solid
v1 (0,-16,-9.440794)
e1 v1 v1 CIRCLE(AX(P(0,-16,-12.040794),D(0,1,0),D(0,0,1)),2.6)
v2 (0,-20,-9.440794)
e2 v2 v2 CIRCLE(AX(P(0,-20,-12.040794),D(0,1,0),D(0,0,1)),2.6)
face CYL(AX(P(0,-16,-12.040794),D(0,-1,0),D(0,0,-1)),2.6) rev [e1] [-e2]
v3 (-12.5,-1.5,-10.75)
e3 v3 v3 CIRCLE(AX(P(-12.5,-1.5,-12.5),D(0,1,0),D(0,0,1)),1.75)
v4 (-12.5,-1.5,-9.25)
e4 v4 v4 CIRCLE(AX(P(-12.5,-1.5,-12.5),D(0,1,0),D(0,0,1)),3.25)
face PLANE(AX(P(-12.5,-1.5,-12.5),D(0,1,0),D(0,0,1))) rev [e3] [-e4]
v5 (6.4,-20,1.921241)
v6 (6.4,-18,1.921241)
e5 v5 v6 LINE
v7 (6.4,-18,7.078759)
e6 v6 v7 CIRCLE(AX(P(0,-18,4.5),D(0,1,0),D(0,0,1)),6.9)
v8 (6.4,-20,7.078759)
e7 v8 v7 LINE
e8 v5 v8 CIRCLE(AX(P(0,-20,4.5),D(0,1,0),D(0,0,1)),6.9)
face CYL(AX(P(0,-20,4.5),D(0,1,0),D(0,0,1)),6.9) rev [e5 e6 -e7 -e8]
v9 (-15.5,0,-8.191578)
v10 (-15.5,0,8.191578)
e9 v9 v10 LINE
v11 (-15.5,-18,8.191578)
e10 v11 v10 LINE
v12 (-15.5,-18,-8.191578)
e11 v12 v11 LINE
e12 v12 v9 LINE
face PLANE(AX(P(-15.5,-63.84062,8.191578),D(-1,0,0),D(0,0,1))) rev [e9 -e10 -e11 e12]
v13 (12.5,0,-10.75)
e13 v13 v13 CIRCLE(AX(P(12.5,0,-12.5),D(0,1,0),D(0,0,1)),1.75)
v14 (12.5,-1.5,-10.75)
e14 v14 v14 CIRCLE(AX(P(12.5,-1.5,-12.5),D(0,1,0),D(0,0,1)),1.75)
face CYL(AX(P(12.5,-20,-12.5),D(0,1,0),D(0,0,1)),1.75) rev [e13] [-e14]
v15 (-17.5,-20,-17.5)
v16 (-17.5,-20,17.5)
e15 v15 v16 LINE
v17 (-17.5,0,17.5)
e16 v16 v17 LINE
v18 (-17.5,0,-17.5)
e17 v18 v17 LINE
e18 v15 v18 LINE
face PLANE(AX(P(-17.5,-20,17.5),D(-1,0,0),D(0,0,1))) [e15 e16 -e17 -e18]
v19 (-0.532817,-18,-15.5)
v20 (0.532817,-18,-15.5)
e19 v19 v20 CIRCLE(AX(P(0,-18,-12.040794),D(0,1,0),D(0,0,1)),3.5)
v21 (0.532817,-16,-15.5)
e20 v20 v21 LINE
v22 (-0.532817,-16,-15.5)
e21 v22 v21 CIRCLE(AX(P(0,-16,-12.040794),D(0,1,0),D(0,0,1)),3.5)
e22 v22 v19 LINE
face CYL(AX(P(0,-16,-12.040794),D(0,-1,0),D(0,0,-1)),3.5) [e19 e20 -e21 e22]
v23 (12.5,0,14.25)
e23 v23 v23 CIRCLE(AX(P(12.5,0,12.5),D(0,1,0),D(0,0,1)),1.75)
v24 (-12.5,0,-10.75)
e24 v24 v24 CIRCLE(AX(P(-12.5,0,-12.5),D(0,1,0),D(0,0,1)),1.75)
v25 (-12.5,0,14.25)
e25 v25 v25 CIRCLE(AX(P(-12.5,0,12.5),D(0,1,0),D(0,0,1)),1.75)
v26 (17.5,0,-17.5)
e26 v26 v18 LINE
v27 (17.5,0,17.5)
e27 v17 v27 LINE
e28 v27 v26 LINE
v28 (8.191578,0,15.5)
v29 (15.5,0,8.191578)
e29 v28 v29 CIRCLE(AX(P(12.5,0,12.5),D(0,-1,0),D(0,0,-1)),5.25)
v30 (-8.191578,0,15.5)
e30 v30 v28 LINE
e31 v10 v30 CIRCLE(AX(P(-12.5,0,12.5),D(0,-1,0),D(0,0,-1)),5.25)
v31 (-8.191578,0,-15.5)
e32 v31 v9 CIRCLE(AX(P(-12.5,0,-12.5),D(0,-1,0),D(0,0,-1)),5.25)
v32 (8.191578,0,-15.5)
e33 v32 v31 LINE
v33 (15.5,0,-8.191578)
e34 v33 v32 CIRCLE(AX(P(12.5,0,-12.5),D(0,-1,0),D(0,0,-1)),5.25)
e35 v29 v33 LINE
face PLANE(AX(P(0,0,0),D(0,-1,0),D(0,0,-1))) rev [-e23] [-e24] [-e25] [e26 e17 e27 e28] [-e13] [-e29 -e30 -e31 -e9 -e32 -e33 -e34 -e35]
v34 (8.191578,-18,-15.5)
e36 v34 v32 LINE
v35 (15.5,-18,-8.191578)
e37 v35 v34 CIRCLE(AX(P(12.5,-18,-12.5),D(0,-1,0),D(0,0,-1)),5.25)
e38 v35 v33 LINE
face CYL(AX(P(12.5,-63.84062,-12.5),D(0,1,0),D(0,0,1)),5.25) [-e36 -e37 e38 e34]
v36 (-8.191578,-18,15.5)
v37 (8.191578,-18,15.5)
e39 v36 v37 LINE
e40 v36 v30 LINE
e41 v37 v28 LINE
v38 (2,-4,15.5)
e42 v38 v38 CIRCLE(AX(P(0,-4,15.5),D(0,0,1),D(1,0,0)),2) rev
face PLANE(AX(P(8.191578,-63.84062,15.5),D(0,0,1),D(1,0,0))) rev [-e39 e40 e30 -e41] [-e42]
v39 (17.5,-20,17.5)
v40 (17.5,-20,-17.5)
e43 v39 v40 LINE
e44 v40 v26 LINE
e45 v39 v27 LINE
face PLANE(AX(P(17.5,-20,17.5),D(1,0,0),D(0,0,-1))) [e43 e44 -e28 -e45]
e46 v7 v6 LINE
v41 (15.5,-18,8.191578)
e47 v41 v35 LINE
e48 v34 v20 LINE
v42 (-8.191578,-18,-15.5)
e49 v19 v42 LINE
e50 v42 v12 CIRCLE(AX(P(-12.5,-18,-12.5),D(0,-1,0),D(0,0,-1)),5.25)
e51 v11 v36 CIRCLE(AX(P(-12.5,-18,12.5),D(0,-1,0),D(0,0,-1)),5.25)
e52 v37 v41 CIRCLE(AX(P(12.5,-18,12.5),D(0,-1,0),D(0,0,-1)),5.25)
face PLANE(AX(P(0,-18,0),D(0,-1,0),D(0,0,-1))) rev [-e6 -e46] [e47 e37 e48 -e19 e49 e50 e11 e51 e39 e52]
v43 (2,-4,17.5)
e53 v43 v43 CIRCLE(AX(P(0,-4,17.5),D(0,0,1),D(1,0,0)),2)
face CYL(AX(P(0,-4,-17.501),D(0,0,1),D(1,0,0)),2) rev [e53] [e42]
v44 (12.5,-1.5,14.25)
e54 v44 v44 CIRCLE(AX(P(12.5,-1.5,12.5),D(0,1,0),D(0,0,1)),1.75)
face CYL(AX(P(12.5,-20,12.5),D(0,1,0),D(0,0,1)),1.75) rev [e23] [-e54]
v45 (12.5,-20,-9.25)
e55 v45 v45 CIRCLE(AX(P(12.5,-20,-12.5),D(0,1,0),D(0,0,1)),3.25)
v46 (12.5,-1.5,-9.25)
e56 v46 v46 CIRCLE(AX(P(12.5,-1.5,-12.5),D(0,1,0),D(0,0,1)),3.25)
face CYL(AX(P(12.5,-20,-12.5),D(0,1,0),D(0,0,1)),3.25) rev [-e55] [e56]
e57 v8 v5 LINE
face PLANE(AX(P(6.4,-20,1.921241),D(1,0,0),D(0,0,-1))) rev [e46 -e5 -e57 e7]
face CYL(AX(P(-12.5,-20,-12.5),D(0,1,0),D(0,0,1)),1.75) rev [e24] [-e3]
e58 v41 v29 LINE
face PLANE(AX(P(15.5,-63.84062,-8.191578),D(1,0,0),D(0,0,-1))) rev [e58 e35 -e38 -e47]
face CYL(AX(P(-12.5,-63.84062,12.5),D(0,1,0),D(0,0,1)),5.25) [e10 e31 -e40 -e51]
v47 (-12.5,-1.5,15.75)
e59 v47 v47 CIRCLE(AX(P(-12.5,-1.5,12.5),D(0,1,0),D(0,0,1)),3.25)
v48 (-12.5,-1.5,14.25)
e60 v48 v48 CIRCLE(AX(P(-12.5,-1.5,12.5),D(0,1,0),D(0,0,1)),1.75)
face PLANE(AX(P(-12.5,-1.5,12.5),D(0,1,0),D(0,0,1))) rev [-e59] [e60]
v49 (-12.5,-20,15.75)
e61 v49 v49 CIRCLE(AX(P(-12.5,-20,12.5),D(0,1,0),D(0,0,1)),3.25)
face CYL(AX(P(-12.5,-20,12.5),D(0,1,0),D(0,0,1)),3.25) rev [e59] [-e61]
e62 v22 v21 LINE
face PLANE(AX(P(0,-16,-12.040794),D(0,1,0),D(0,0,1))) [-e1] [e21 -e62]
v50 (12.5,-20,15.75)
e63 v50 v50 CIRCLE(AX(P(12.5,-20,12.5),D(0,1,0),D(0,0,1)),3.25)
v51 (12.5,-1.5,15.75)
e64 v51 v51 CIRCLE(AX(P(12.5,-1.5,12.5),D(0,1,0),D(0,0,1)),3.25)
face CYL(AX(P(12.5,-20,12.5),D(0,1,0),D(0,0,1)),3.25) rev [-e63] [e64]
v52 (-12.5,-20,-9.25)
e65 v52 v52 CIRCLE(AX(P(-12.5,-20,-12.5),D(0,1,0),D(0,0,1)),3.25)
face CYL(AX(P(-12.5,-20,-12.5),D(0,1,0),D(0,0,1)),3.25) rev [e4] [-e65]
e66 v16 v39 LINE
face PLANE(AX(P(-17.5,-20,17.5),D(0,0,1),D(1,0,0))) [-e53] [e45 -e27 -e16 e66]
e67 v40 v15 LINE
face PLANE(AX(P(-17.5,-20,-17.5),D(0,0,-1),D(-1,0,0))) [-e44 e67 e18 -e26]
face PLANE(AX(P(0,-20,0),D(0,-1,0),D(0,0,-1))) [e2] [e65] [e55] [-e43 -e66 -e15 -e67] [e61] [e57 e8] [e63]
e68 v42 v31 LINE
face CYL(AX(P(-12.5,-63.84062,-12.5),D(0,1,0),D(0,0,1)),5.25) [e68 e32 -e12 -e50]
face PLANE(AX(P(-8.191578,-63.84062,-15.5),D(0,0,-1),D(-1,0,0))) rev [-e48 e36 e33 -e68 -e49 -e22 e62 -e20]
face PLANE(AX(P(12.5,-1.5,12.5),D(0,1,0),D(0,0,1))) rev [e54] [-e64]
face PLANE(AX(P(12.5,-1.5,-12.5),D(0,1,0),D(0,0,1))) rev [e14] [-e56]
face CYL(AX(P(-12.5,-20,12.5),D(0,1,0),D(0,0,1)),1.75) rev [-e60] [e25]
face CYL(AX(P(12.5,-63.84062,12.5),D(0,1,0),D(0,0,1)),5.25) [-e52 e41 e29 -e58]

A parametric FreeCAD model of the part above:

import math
import FreeCAD as App
import Part
import Sketcher

V = App.Vector
Q = App.Units.Quantity

doc = App.newDocument("Part")
body = doc.addObject("PartDesign::Body", "Body")

# Sketch on XZ plane
sketch1 = body.newObject("Sketcher::SketchObject", "Sketch")
sketch1.AttachmentSupport = (doc.getObject("XZ_Plane"), [""])
sketch1.MapMode = "FlatFace"
sketch1.addGeometry(Part.LineSegment(V(-18, -18, 0), V(-18, 18, 0)), False)
sketch1.addGeometry(Part.LineSegment(V(-18, 18, 0), V(18, 18, 0)), False)
sketch1.addGeometry(Part.LineSegment(V(18, 18, 0), V(18, -18, 0)), False)
sketch1.addGeometry(Part.LineSegment(V(18, -18, 0), V(-18, -18, 0)), False)
sketch1.addConstraint(Sketcher.Constraint("Coincident", 0, 2, 1, 1))
sketch1.addConstraint(Sketcher.Constraint("Coincident", 1, 2, 2, 1))
sketch1.addConstraint(Sketcher.Constraint("Coincident", 2, 2, 3, 1))
sketch1.addConstraint(Sketcher.Constraint("Coincident", 3, 2, 0, 1))
sketch1.addConstraint(Sketcher.Constraint("Vertical", 0))
sketch1.addConstraint(Sketcher.Constraint("Horizontal", 1))
sketch1.addConstraint(Sketcher.Constraint("Vertical", 2))
sketch1.addConstraint(Sketcher.Constraint("Horizontal", 3))
sketch1.addConstraint(Sketcher.Constraint("Symmetric", 0, 2, 2, 2, -1, 1))
sketch1.addConstraint(Sketcher.Constraint("Equal", 3, 0))
sketch1.addConstraint(Sketcher.Constraint("DistanceX", 1, 1, 1, 2, Q("35 mm")))
pad1 = body.newObject("PartDesign::Pad", "Pad")
pad1.Profile = sketch1
pad1.Length = 20

# Sketch on XZ plane
sketch2 = body.newObject("Sketcher::SketchObject", "Sketch001")
sketch2.AttachmentSupport = (doc.getObject("XZ_Plane"), [""])
sketch2.MapMode = "FlatFace"
sketch2.AttachmentOffset = App.Placement(V(0, 0, 1.5), App.Rotation())
sketch2.addGeometry(Part.Circle(V(-12.5, -12.5, 0), V(0, 0, 1), 3.2), False)
sketch2.addGeometry(Part.Circle(V(12.5, -12.5, 0), V(0, 0, 1), 3.2), False)
sketch2.addGeometry(Part.Circle(V(-12.5, 12.5, 0), V(0, 0, 1), 3.2), False)
sketch2.addGeometry(Part.Circle(V(12.5, 12.5, 0), V(0, 0, 1), 3.2), False)
sketch2.addConstraint(Sketcher.Constraint("Equal", 0, 1))
sketch2.addConstraint(Sketcher.Constraint("Equal", 1, 2))
sketch2.addConstraint(Sketcher.Constraint("Equal", 2, 3))
sketch2.addConstraint(Sketcher.Constraint("Symmetric", 1, 3, 2, 3, -1, 1))
sketch2.addConstraint(Sketcher.Constraint("Symmetric", 0, 3, 3, 3, -1, 1))
sketch2.addConstraint(Sketcher.Constraint("Symmetric", 0, 3, 1, 3, -2))
sketch2.addConstraint(Sketcher.Constraint("Diameter", 0, Q("6.5 mm")))
sketch2.addConstraint(Sketcher.Constraint("DistanceX", 0, 3, 1, 3, Q("25 mm")))
sketch2.addConstraint(Sketcher.Constraint("DistanceY", 0, 3, 2, 3, Q("25 mm")))
pocket1 = body.newObject("PartDesign::Pocket", "Pocket")
pocket1.Profile = sketch2
pocket1.Type = "ThroughAll"
pocket1.Reversed = True

# Sketch on XZ plane
sketch3 = body.newObject("Sketcher::SketchObject", "Sketch002")
sketch3.AttachmentSupport = (doc.getObject("XZ_Plane"), [""])
sketch3.MapMode = "FlatFace"
sketch3.addGeometry(Part.LineSegment(V(8, -16, 0), V(-8, -16, 0)), False)
sketch3.addGeometry(Part.ArcOfCircle(Part.Circle(V(-12, -12, 0), V(0, 0, 1), 5), math.radians(-35), math.radians(125)), False)
sketch3.addGeometry(Part.LineSegment(V(-16, -8, 0), V(-16, 8, 0)), False)
sketch3.addGeometry(Part.ArcOfCircle(Part.Circle(V(-12, 12, 0), V(0, 0, 1), 5), math.radians(-125), math.radians(35)), False)
sketch3.addGeometry(Part.LineSegment(V(-8, 16, 0), V(8, 16, 0)), False)
sketch3.addGeometry(Part.ArcOfCircle(Part.Circle(V(12, 12, 0), V(0, 0, 1), 5), math.radians(145), math.radians(305)), False)
sketch3.addGeometry(Part.LineSegment(V(16, 8, 0), V(16, -8, 0)), False)
sketch3.addGeometry(Part.ArcOfCircle(Part.Circle(V(12, -12, 0), V(0, 0, 1), 5), math.radians(55), math.radians(215)), False)
sketch3.addConstraint(Sketcher.Constraint("Coincident", 0, 2, 1, 1))
sketch3.addConstraint(Sketcher.Constraint("Coincident", 1, 2, 2, 1))
sketch3.addConstraint(Sketcher.Constraint("Coincident", 2, 2, 3, 1))
sketch3.addConstraint(Sketcher.Constraint("Coincident", 3, 2, 4, 1))
sketch3.addConstraint(Sketcher.Constraint("Coincident", 4, 2, 5, 1))
sketch3.addConstraint(Sketcher.Constraint("Coincident", 5, 2, 6, 1))
sketch3.addConstraint(Sketcher.Constraint("Coincident", 6, 2, 7, 1))
sketch3.addConstraint(Sketcher.Constraint("Coincident", 7, 2, 0, 1))
sketch3.addConstraint(Sketcher.Constraint("Horizontal", 0))
sketch3.addConstraint(Sketcher.Constraint("Vertical", 2))
sketch3.addConstraint(Sketcher.Constraint("Horizontal", 4))
sketch3.addConstraint(Sketcher.Constraint("Vertical", 6))
sketch3.addConstraint(Sketcher.Constraint("Equal", 1, 3))
sketch3.addConstraint(Sketcher.Constraint("Equal", 3, 5))
sketch3.addConstraint(Sketcher.Constraint("Equal", 5, 7))
sketch3.addConstraint(Sketcher.Constraint("Symmetric", 1, 3, 5, 3, -1, 1))
sketch3.addConstraint(Sketcher.Constraint("Symmetric", 3, 3, 7, 3, -1, 1))
sketch3.addConstraint(Sketcher.Constraint("Symmetric", 3, 3, 5, 3, -2))
sketch3.addConstraint(Sketcher.Constraint("Horizontal", 2, 2, 5, 2))
sketch3.addConstraint(Sketcher.Constraint("Vertical", 0, 2, 3, 2))
sketch3.addConstraint(Sketcher.Constraint("Equal", 4, 2))
sketch3.addConstraint(Sketcher.Constraint("Radius", 1, Q("5.25 mm")))
sketch3.addConstraint(Sketcher.Constraint("DistanceY", 1, 3, 3, 3, Q("25 mm")))
sketch3.addConstraint(Sketcher.Constraint("DistanceX", 3, 3, 5, 3, Q("25 mm")))
sketch3.addConstraint(Sketcher.Constraint("DistanceY", 0, 2, 1, 3, Q("3 mm")))
pocket2 = body.newObject("PartDesign::Pocket", "Pocket001")
pocket2.Profile = sketch3
pocket2.Length = 18
pocket2.Reversed = True

# Sketch on XZ plane
sketch4 = body.newObject("Sketcher::SketchObject", "Sketch003")
sketch4.AttachmentSupport = (doc.getObject("XZ_Plane"), [""])
sketch4.MapMode = "FlatFace"
sketch4.AttachmentOffset = App.Placement(V(0, 0, 18), App.Rotation())
sketch4.addGeometry(Part.Circle(V(0, -12, 0), V(0, 0, 1), 3.5), False)
sketch4.addGeometry(Part.Circle(V(0, -12, 0), V(0, 0, 1), 2.6), False)
sketch4.addConstraint(Sketcher.Constraint("Coincident", 1, 3, 0, 3))
sketch4.addConstraint(Sketcher.Constraint("PointOnObject", 0, 3, -2))
sketch4.addConstraint(Sketcher.Constraint("Diameter", 0, Q("7 mm")))
sketch4.addConstraint(Sketcher.Constraint("Diameter", 1, Q("5.2 mm")))
sketch4.addConstraint(Sketcher.Constraint("DistanceY", 0, 3, -1, 1, Q("12.040794 mm")))
pad2 = body.newObject("PartDesign::Pad", "Pad001")
pad2.Profile = sketch4
pad2.Length = 2
pad2.Reversed = True

# Sketch on XZ plane
sketch5 = body.newObject("Sketcher::SketchObject", "Sketch004")
sketch5.AttachmentSupport = (doc.getObject("XZ_Plane"), [""])
sketch5.MapMode = "FlatFace"
sketch5.addGeometry(Part.Circle(V(-12.5, -12.5, 0), V(0, 0, 1), 1.8), False)
sketch5.addGeometry(Part.Circle(V(12.5, -12.5, 0), V(0, 0, 1), 1.8), False)
sketch5.addGeometry(Part.Circle(V(12.5, 12.5, 0), V(0, 0, 1), 1.8), False)
sketch5.addGeometry(Part.Circle(V(-12.5, 12.5, 0), V(0, 0, 1), 1.8), False)
sketch5.addConstraint(Sketcher.Constraint("Equal", 0, 1))
sketch5.addConstraint(Sketcher.Constraint("Equal", 1, 2))
sketch5.addConstraint(Sketcher.Constraint("Equal", 2, 3))
sketch5.addConstraint(Sketcher.Constraint("Symmetric", 0, 3, 2, 3, -1, 1))
sketch5.addConstraint(Sketcher.Constraint("Symmetric", 1, 3, 3, 3, -1, 1))
sketch5.addConstraint(Sketcher.Constraint("Symmetric", 0, 3, 1, 3, -2))
sketch5.addConstraint(Sketcher.Constraint("Diameter", 0, Q("3.5 mm")))
sketch5.addConstraint(Sketcher.Constraint("DistanceX", 0, 3, 1, 3, Q("25 mm")))
sketch5.addConstraint(Sketcher.Constraint("DistanceY", 1, 3, 2, 3, Q("25 mm")))
pocket3 = body.newObject("PartDesign::Pocket", "Pocket002")
pocket3.Profile = sketch5
pocket3.Type = "ThroughAll"
pocket3.Reversed = True

# Sketch on XZ plane
sketch6 = body.newObject("Sketcher::SketchObject", "Sketch005")
sketch6.AttachmentSupport = (doc.getObject("XZ_Plane"), [""])
sketch6.MapMode = "FlatFace"
sketch6.AttachmentOffset = App.Placement(V(0, 0, 18), App.Rotation())
sketch6.addGeometry(Part.Circle(V(0, -12, 0), V(0, 0, 1), 2.6), False)
sketch6.addGeometry(Part.LineSegment(V(6.4, 7.1, 0), V(6.4, 1.9, 0)), False)
sketch6.addGeometry(Part.ArcOfCircle(Part.Circle(V(0, 4.5, 0), V(0, 0, 1), 6.9), math.radians(22), math.radians(338)), False)
sketch6.addConstraint(Sketcher.Constraint("Coincident", 1, 1, 2, 1))
sketch6.addConstraint(Sketcher.Constraint("Coincident", 2, 2, 1, 2))
sketch6.addConstraint(Sketcher.Constraint("Vertical", 1))
sketch6.addConstraint(Sketcher.Constraint("PointOnObject", 0, 3, -2))
sketch6.addConstraint(Sketcher.Constraint("PointOnObject", 2, 3, -2))
sketch6.addConstraint(Sketcher.Constraint("Diameter", 0, Q("5.2 mm")))
sketch6.addConstraint(Sketcher.Constraint("Radius", 2, Q("6.9 mm")))
sketch6.addConstraint(Sketcher.Constraint("DistanceY", -1, 1, 2, 3, Q("4.5 mm")))
sketch6.addConstraint(Sketcher.Constraint("DistanceX", -1, 1, 1, 1, Q("6.4 mm")))
sketch6.addConstraint(Sketcher.Constraint("DistanceY", 0, 3, -1, 1, Q("12.040794 mm")))
pocket4 = body.newObject("PartDesign::Pocket", "Pocket003")
pocket4.Profile = sketch6
pocket4.Type = "ThroughAll"
pocket4.Reversed = True

# Sketch on XY plane
sketch7 = body.newObject("Sketcher::SketchObject", "Sketch006")
sketch7.AttachmentSupport = (doc.getObject("XY_Plane"), [""])
sketch7.MapMode = "FlatFace"
sketch7.AttachmentOffset = App.Placement(V(0, 0, 17.5), App.Rotation())
sketch7.addGeometry(Part.Circle(V(0, -4, 0), V(0, 0, 1), 2), False)
sketch7.addConstraint(Sketcher.Constraint("PointOnObject", 0, 3, -2))
sketch7.addConstraint(Sketcher.Constraint("Diameter", 0, Q("4 mm")))
sketch7.addConstraint(Sketcher.Constraint("DistanceY", 0, 3, -1, 1, Q("4 mm")))
pocket5 = body.newObject("PartDesign::Pocket", "Pocket004")
pocket5.Profile = sketch7
pocket5.Type = "UpToFirst"

doc.recompute()
